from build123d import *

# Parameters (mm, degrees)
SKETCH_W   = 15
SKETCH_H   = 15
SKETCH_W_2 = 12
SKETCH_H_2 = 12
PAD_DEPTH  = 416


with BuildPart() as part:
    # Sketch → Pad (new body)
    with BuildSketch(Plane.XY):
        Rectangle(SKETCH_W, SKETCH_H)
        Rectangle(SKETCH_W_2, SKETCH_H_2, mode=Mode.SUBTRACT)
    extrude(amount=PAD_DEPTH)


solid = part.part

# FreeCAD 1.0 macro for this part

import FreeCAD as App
import Part
import Sketcher
from FreeCAD import Vector
Q = App.Units.Quantity

doc = App.newDocument("Part")
body = doc.addObject("PartDesign::Body", "Body")

# Sketch on XY plane
sketch1 = body.newObject("Sketcher::SketchObject", "Sketch")
sketch1.AttachmentSupport = (doc.getObject("XY_Plane"), [""])
sketch1.MapMode = "FlatFace"
sketch1.addGeometry([
    Part.LineSegment(Vector(-7.5, 7.5, 0), Vector(-7.5, -7.5, 0)),  # 0
    Part.LineSegment(Vector(-7.5, -7.5, 0), Vector(7.5, -7.5, 0)),  # 1
    Part.LineSegment(Vector(7.5, -7.5, 0), Vector(7.5, 7.5, 0)),  # 2
    Part.LineSegment(Vector(7.5, 7.5, 0), Vector(-7.5, 7.5, 0)),  # 3
    Part.LineSegment(Vector(6, -6, 0), Vector(-6, -6, 0)),  # 4
    Part.LineSegment(Vector(-6, -6, 0), Vector(-6, 6, 0)),  # 5
    Part.LineSegment(Vector(-6, 6, 0), Vector(6, 6, 0)),  # 6
    Part.LineSegment(Vector(6, 6, 0), Vector(6, -6, 0)),  # 7
], False)
sketch1.addConstraint([
    Sketcher.Constraint("Coincident", 0, 2, 1, 1),
    Sketcher.Constraint("Coincident", 1, 2, 2, 1),
    Sketcher.Constraint("Coincident", 2, 2, 3, 1),
    Sketcher.Constraint("Coincident", 3, 2, 0, 1),
    Sketcher.Constraint("Coincident", 4, 2, 5, 1),
    Sketcher.Constraint("Coincident", 5, 2, 6, 1),
    Sketcher.Constraint("Coincident", 6, 2, 7, 1),
    Sketcher.Constraint("Coincident", 7, 2, 4, 1),
    Sketcher.Constraint("Vertical", 0),
    Sketcher.Constraint("Horizontal", 1),
    Sketcher.Constraint("Vertical", 2),
    Sketcher.Constraint("Horizontal", 3),
    Sketcher.Constraint("Horizontal", 4),
    Sketcher.Constraint("Vertical", 5),
    Sketcher.Constraint("Horizontal", 6),
    Sketcher.Constraint("Vertical", 7),
    Sketcher.Constraint("Symmetric", 0, 2, 2, 2, -1, 1),
    Sketcher.Constraint("Symmetric", 4, 2, 6, 2, -1, 1),
    Sketcher.Constraint("Equal", 3, 0),
    Sketcher.Constraint("Equal", 6, 5),
    Sketcher.Constraint("DistanceX", 1, 1, 1, 2, Q("15 mm")),
    Sketcher.Constraint("DistanceX", 4, 2, 4, 1, Q("12 mm")),
])
pad1 = body.newObject("PartDesign::Pad", "Pad")
pad1.Profile = sketch1
pad1.Length = 416

doc.recompute()
